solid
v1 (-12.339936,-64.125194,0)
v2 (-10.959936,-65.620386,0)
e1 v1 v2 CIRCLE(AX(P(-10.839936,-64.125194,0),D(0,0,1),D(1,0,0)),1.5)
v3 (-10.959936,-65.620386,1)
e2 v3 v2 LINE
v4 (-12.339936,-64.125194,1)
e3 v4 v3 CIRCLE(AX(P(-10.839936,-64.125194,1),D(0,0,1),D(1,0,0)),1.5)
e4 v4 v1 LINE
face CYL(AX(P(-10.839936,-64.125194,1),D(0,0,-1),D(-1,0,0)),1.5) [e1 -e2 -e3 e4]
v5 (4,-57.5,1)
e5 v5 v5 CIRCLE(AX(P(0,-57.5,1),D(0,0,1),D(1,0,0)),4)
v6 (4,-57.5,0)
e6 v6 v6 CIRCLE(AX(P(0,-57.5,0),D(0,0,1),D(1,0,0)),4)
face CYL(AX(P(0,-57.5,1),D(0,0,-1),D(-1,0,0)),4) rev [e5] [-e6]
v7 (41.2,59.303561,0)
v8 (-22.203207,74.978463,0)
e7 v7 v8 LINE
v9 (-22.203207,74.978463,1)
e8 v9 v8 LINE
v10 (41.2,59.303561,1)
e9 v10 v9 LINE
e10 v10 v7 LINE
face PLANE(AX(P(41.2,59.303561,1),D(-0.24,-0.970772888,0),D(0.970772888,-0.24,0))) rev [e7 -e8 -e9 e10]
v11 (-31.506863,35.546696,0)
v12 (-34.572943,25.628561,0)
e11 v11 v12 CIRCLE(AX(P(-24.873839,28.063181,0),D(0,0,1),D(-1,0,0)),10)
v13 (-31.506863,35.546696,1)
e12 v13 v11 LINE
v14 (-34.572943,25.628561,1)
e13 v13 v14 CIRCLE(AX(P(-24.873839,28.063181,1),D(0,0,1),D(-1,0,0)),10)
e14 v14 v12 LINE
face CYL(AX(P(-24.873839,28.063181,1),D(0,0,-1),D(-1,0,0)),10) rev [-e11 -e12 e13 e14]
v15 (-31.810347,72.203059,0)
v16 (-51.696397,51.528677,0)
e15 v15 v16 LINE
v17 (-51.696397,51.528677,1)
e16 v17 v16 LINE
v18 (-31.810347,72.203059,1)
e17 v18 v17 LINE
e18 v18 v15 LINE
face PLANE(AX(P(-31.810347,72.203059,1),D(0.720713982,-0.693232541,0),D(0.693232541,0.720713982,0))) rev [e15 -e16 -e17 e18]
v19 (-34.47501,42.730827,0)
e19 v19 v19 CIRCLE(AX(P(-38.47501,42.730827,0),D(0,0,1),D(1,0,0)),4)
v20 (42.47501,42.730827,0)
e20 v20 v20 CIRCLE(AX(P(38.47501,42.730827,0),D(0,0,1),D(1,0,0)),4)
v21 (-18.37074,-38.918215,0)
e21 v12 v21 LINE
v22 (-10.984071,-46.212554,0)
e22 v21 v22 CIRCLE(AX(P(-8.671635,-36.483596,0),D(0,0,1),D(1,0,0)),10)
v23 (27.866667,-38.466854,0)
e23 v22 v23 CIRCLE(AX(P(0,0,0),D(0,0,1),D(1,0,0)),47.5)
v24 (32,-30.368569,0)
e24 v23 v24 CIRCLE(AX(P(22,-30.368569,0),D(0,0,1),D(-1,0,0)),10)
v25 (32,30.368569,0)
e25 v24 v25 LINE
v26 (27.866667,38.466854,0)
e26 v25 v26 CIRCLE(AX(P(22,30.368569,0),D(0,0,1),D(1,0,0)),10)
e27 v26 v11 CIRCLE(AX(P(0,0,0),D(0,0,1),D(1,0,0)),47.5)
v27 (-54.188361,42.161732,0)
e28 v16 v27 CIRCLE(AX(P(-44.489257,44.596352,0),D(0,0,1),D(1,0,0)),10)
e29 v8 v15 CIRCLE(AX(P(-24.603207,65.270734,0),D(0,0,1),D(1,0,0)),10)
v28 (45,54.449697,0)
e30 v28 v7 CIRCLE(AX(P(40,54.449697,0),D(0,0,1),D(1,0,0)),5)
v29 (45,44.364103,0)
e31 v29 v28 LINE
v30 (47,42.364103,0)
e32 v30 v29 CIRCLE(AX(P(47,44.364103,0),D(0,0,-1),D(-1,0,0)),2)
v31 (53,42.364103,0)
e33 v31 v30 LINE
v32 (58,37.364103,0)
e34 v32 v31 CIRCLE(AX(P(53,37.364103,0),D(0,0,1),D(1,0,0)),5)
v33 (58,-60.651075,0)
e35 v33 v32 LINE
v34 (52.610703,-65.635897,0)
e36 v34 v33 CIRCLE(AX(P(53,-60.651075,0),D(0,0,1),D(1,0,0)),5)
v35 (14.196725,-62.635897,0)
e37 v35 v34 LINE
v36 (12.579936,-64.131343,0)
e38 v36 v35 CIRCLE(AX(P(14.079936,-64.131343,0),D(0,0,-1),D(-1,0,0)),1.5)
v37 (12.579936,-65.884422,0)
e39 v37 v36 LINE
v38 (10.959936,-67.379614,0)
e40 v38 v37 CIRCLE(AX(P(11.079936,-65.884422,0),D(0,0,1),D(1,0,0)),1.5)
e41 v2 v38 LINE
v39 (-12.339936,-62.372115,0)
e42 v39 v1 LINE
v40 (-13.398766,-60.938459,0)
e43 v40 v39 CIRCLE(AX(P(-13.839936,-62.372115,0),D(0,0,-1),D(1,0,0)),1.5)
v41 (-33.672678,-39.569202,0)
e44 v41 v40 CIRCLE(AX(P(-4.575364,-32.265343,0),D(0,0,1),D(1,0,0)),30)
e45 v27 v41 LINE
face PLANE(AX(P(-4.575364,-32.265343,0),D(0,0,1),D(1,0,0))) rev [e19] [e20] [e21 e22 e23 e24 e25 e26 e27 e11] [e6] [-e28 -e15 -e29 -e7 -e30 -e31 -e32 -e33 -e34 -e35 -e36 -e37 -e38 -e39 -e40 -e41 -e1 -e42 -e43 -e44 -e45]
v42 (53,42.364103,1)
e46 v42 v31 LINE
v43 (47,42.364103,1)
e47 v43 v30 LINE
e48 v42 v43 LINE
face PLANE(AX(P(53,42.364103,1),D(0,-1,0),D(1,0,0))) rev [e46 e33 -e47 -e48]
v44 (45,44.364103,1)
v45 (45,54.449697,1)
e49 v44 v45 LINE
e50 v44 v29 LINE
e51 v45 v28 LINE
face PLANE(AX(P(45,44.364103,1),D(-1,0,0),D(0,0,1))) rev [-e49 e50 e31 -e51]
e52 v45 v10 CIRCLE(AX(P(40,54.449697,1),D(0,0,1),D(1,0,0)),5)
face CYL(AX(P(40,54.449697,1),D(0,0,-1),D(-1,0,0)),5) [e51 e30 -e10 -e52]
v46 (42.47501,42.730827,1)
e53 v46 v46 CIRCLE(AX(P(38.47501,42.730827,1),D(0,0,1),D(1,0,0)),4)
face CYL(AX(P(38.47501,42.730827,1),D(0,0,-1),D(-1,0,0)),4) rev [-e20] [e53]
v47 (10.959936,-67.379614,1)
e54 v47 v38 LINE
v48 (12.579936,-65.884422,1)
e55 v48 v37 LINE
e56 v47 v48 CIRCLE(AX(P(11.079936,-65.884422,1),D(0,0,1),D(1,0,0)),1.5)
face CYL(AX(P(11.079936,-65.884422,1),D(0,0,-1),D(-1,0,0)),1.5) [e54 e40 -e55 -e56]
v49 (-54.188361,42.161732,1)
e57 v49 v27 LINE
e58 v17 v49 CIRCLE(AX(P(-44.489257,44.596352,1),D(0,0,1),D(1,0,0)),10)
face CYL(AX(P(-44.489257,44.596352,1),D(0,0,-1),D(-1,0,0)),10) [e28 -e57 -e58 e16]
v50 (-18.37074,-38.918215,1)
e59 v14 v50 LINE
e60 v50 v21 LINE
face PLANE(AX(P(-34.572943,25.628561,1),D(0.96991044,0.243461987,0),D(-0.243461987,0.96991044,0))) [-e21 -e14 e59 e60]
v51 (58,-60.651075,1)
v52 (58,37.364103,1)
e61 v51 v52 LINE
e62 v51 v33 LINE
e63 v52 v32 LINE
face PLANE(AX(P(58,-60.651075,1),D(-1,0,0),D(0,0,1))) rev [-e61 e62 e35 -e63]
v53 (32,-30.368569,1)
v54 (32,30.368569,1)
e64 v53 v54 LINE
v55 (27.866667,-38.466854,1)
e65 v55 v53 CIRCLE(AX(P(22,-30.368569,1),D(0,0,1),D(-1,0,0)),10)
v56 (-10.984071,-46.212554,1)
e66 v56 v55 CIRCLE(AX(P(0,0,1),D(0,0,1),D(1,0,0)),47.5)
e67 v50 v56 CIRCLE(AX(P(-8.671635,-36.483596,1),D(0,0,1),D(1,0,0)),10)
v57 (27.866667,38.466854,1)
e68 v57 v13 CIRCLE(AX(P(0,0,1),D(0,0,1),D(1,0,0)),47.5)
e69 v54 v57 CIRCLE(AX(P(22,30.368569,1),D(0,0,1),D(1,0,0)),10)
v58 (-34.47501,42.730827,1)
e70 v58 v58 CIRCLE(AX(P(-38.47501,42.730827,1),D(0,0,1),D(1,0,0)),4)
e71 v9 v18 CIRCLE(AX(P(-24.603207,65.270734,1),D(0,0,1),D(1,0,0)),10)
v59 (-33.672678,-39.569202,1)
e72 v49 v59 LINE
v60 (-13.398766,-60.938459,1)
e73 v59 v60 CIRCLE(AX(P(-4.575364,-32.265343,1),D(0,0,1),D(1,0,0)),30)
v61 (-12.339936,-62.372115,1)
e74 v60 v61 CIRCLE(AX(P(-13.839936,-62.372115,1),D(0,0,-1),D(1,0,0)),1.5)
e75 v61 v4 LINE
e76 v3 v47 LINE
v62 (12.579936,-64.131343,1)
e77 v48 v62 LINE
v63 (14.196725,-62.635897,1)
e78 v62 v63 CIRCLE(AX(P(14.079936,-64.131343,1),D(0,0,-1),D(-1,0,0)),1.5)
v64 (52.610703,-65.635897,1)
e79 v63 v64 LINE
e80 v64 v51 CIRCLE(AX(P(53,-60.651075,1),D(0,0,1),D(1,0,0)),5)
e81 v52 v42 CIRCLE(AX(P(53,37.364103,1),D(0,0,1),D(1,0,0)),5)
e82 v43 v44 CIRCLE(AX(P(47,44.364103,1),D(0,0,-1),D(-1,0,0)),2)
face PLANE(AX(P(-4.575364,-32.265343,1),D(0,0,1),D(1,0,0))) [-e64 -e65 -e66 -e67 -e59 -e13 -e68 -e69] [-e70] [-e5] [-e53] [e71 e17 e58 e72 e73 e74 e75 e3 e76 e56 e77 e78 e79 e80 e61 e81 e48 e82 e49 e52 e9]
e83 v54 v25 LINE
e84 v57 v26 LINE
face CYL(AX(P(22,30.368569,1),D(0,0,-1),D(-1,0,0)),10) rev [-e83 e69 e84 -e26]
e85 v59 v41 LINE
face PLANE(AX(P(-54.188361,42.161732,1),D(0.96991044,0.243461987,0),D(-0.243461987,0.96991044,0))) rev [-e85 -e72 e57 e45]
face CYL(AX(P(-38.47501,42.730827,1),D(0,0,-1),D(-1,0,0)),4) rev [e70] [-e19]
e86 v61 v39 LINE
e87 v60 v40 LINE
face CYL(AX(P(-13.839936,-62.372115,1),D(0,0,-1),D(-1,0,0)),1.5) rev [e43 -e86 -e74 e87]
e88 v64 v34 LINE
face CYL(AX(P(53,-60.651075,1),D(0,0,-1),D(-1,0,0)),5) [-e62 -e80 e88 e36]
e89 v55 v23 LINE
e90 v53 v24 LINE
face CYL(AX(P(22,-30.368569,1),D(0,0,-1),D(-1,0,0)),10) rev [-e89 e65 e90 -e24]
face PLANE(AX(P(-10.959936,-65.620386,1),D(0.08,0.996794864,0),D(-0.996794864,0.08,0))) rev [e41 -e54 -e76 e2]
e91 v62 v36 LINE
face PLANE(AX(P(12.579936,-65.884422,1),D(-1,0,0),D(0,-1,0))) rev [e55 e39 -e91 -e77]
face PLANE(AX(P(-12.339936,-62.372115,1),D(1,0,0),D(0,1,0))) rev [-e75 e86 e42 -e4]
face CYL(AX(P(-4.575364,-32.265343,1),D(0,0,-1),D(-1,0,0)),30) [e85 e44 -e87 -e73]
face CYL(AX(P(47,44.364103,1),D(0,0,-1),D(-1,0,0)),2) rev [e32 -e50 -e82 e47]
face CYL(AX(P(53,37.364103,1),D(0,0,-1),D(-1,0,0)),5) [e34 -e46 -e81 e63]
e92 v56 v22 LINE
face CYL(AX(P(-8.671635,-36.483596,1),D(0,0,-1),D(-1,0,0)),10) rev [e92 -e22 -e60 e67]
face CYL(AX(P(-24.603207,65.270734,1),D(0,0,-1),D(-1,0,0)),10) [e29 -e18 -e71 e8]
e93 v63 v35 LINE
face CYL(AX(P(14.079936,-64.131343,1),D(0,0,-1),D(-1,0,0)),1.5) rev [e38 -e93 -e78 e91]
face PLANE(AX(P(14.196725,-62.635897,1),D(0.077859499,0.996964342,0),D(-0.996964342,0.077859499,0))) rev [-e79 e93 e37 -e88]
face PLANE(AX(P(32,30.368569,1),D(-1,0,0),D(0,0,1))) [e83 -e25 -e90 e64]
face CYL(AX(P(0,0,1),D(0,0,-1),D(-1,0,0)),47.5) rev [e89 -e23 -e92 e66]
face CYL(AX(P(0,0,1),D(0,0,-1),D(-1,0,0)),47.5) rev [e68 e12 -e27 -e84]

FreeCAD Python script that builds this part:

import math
import FreeCAD as App
import Part
import Sketcher
from FreeCAD import Vector

doc = App.newDocument("Part")
params = doc.addObject("Spreadsheet::Sheet", "Params")
for row, (alias, value) in enumerate([
    ("sketch1_diameter", "8 mm"),
    ("sketch1_radius", "5 mm"),
    ("sketch1_radius2", "2 mm"),
    ("sketch1_radius3", "10 mm"),
    ("sketch1_radius4", "30 mm"),
    ("pad1_length", "1 mm"),
], start=1):
    params.set(f"A{row}", alias)
    params.set(f"B{row}", "=" + value)
    params.setAlias(f"B{row}", alias)

body = doc.addObject("PartDesign::Body", "Body")

# Sketch on XY plane
sketch1 = body.newObject("Sketcher::SketchObject", "Sketch")
sketch1.AttachmentSupport = (doc.getObject("XY_Plane"), [""])
sketch1.MapMode = "FlatFace"
sketch1.addGeometry([
    Part.LineSegment(Vector(-12.339936, -62.372115, 0), Vector(-12.339936, -64.125194, 0)),  # 0
    Part.ArcOfCircle(Part.Circle(Vector(-10.839936, -64.125194, 0), Vector(0, 0, 1), 1.5), math.radians(180), math.radians(265.411434)),  # 1
    Part.LineSegment(Vector(-10.959936, -65.620386, 0), Vector(10.959936, -67.379614, 0)),  # 2
    Part.ArcOfCircle(Part.Circle(Vector(11.079936, -65.884422, 0), Vector(0, 0, 1), 1.5), math.radians(-94.588566), math.radians(0)),  # 3
    Part.LineSegment(Vector(12.579936, -65.884422, 0), Vector(12.579936, -64.131343, 0)),  # 4
    Part.ArcOfCircle(Part.Circle(Vector(14.079936, -64.131343, 0), Vector(0, 0, 1), 1.5), math.radians(85.53446), math.radians(180)),  # 5
    Part.LineSegment(Vector(14.196725, -62.635897, 0), Vector(52.610703, -65.635897, 0)),  # 6
    Part.ArcOfCircle(Part.Circle(Vector(53, -60.651075, 0), Vector(0, 0, 1), 5), math.radians(-94.46554), math.radians(0)),  # 7
    Part.LineSegment(Vector(58, -60.651075, 0), Vector(58, 37.364103, 0)),  # 8
    Part.ArcOfCircle(Part.Circle(Vector(53, 37.364103, 0), Vector(0, 0, 1), 5), math.radians(0), math.radians(90)),  # 9
    Part.LineSegment(Vector(53, 42.364103, 0), Vector(47, 42.364103, 0)),  # 10
    Part.ArcOfCircle(Part.Circle(Vector(47, 44.364103, 0), Vector(0, 0, 1), 2), math.radians(-180), math.radians(-90)),  # 11
    Part.LineSegment(Vector(45, 44.364103, 0), Vector(45, 54.449697, 0)),  # 12
    Part.ArcOfCircle(Part.Circle(Vector(40, 54.449697, 0), Vector(0, 0, 1), 5), math.radians(0), math.radians(76.11346)),  # 13
    Part.LineSegment(Vector(41.2, 59.303561, 0), Vector(-22.203207, 74.978463, 0)),  # 14
    Part.ArcOfCircle(Part.Circle(Vector(-24.603207, 65.270734, 0), Vector(0, 0, 1), 10), math.radians(76.11346), math.radians(136.11346)),  # 15
    Part.LineSegment(Vector(-31.810347, 72.203059, 0), Vector(-51.696397, 51.528677, 0)),  # 16
    Part.ArcOfCircle(Part.Circle(Vector(-44.489257, 44.596352, 0), Vector(0, 0, 1), 10), math.radians(136.11346), math.radians(194.09096)),  # 17
    Part.LineSegment(Vector(-54.188361, 42.161732, 0), Vector(-33.672678, -39.569202, 0)),  # 18
    Part.ArcOfCircle(Part.Circle(Vector(-4.575364, -32.265343, 0), Vector(0, 0, 1), 30), math.radians(-165.90904), math.radians(-107.104379)),  # 19
    Part.ArcOfCircle(Part.Circle(Vector(-13.839936, -62.372115, 0), Vector(0, 0, 1), 1.5), math.radians(0), math.radians(72.895621)),  # 20
    Part.Circle(Vector(0, -57.5, 0), Vector(0, 0, 1), 4),  # 21
    Part.ArcOfCircle(Part.Circle(Vector(22, 30.368569, 0), Vector(0, 0, 1), 10), math.radians(0), math.radians(54.07918)),  # 22
    Part.LineSegment(Vector(32, 30.368569, 0), Vector(32, -30.368569, 0)),  # 23
    Part.ArcOfCircle(Part.Circle(Vector(22, -30.368569, 0), Vector(0, 0, 1), 10), math.radians(-54.07918), math.radians(0)),  # 24
    Part.ArcOfCircle(Part.Circle(Vector(0, 0, 0), Vector(0, 0, 1), 47.5), math.radians(-103.370299), math.radians(-54.07918)),  # 25
    Part.ArcOfCircle(Part.Circle(Vector(-8.671635, -36.483596, 0), Vector(0, 0, 1), 10), math.radians(-165.90904), math.radians(-103.370299)),  # 26
    Part.LineSegment(Vector(-18.37074, -38.918215, 0), Vector(-34.572943, 25.628561, 0)),  # 27
    Part.ArcOfCircle(Part.Circle(Vector(-24.873839, 28.063181, 0), Vector(0, 0, 1), 10), math.radians(131.552219), math.radians(194.09096)),  # 28
    Part.ArcOfCircle(Part.Circle(Vector(0, 0, 0), Vector(0, 0, 1), 47.5), math.radians(54.07918), math.radians(131.552219)),  # 29
    Part.Circle(Vector(-38.47501, 42.730827, 0), Vector(0, 0, 1), 4),  # 30
    Part.Circle(Vector(38.47501, 42.730827, 0), Vector(0, 0, 1), 4),  # 31
], False)
sketch1.addConstraint([
    Sketcher.Constraint("Tangent", 0, 2, 1, 1),
    Sketcher.Constraint("Tangent", 1, 2, 2, 1),
    Sketcher.Constraint("Tangent", 2, 2, 3, 1),
    Sketcher.Constraint("Tangent", 3, 2, 4, 1),
    Sketcher.Constraint("Tangent", 4, 2, 5, 2),
    Sketcher.Constraint("Tangent", 5, 1, 6, 1),
    Sketcher.Constraint("Tangent", 6, 2, 7, 1),
    Sketcher.Constraint("Tangent", 7, 2, 8, 1),
    Sketcher.Constraint("Tangent", 8, 2, 9, 1),
    Sketcher.Constraint("Tangent", 9, 2, 10, 1),
    Sketcher.Constraint("Tangent", 10, 2, 11, 2),
    Sketcher.Constraint("Tangent", 11, 1, 12, 1),
    Sketcher.Constraint("Tangent", 12, 2, 13, 1),
    Sketcher.Constraint("Tangent", 13, 2, 14, 1),
    Sketcher.Constraint("Tangent", 14, 2, 15, 1),
    Sketcher.Constraint("Tangent", 15, 2, 16, 1),
    Sketcher.Constraint("Tangent", 16, 2, 17, 1),
    Sketcher.Constraint("Tangent", 17, 2, 18, 1),
    Sketcher.Constraint("Tangent", 18, 2, 19, 1),
    Sketcher.Constraint("Tangent", 19, 2, 20, 2),
    Sketcher.Constraint("Tangent", 20, 1, 0, 1),
    Sketcher.Constraint("Tangent", 22, 1, 23, 1),
    Sketcher.Constraint("Tangent", 23, 2, 24, 2),
    Sketcher.Constraint("Tangent", 24, 1, 25, 2),
    Sketcher.Constraint("Tangent", 25, 1, 26, 2),
    Sketcher.Constraint("Tangent", 26, 1, 27, 1),
    Sketcher.Constraint("Tangent", 27, 2, 28, 2),
    Sketcher.Constraint("Tangent", 28, 1, 29, 2),
    Sketcher.Constraint("Tangent", 29, 1, 22, 2),
    Sketcher.Constraint("Vertical", 0),
    Sketcher.Constraint("Vertical", 4),
    Sketcher.Constraint("Vertical", 8),
    Sketcher.Constraint("Horizontal", 10),
    Sketcher.Constraint("Vertical", 12),
    Sketcher.Constraint("Vertical", 23),
    Sketcher.Constraint("Coincident", 25, 3, -1, 1),
    Sketcher.Constraint("Coincident", 29, 3, -1, 1),
    Sketcher.Constraint("Equal", 1, 3),
    Sketcher.Constraint("Equal", 3, 5),
    Sketcher.Constraint("Equal", 7, 9),
    Sketcher.Constraint("Equal", 9, 13),
    Sketcher.Constraint("Equal", 15, 17),
    Sketcher.Constraint("Equal", 5, 20),
    Sketcher.Constraint("Equal", 17, 22),
    Sketcher.Constraint("Equal", 22, 24),
    Sketcher.Constraint("Equal", 24, 26),
    Sketcher.Constraint("Equal", 26, 28),
    Sketcher.Constraint("Equal", 25, 29),
    Sketcher.Constraint("Equal", 21, 30),
    Sketcher.Constraint("Equal", 30, 31),
    Sketcher.Constraint("Symmetric", 30, 3, 31, 3, -2),
    Sketcher.Constraint("PointOnObject", 21, 3, -2),
    Sketcher.Constraint("Parallel", 18, 27),
    Sketcher.Constraint("Equal", 0, 4),
    Sketcher.Constraint("Diameter", 21, 8.0),
    Sketcher.Constraint("Radius", 7, 5.0),
    Sketcher.Constraint("Radius", 11, 2.0),
    Sketcher.Constraint("Radius", 15, 10.0),
    Sketcher.Constraint("Radius", 19, 30.0),
    Sketcher.Constraint("Radius", 1, 1.5),
    Sketcher.Constraint("Radius", 25, 47.5),
    Sketcher.Constraint("DistanceX", 10, 2, 10, 1, 6.0),
    Sketcher.Constraint("DistanceX", -1, 1, 7, 3, 53.0),
    Sketcher.Constraint("DistanceX", -1, 1, 22, 3, 22.0),
    Sketcher.Constraint("DistanceY", 6, 2, 5, 1, 3.0),
    Sketcher.Constraint("DistanceY", 21, 3, -1, 1, 57.5),
    Sketcher.Constraint("DistanceX", -1, 1, 13, 2, 41.2),
    Sketcher.Constraint("DistanceX", 1, 2, 1, 3, 0.12),
    Sketcher.Constraint("DistanceY", 5, 3, 19, 3, 31.866),
    Sketcher.Constraint("DistanceY", 0, 2, 0, 1, 1.753079),
    Sketcher.Constraint("DistanceY", 8, 1, 8, 2, 98.015178),
    Sketcher.Constraint("DistanceX", 19, 3, 5, 3, 18.6553),
    Sketcher.Constraint("DistanceX", 20, 3, 26, 3, 5.168301),
    Sketcher.Constraint("DistanceY", 1, 3, 26, 3, 27.641598),
    Sketcher.Constraint("DistanceX", 17, 2, 28, 1, 22.681499),
    Sketcher.Constraint("Distance", 14, 65.312091),
    Sketcher.Constraint("DistanceY", 12, 1, 12, 2, 10.085593),
    Sketcher.Constraint("DistanceY", 3, 3, -1, 1, 65.884422),
    Sketcher.Constraint("DistanceY", -1, 1, 17, 3, 44.596352),
    Sketcher.Constraint("DistanceX", 30, 3, -1, 1, 38.47501),
    Sketcher.Constraint("DistanceY", 31, 3, 13, 3, 11.718869),
])
sketch1.setExpression("Constraints[54]", "Params.sketch1_diameter")
sketch1.setExpression("Constraints[55]", "Params.sketch1_radius")
sketch1.setExpression("Constraints[56]", "Params.sketch1_radius2")
sketch1.setExpression("Constraints[57]", "Params.sketch1_radius3")
sketch1.setExpression("Constraints[58]", "Params.sketch1_radius4")
pad1 = body.newObject("PartDesign::Pad", "Pad")
pad1.Profile = sketch1
pad1.setExpression("Length", "Params.pad1_length")

doc.recompute()
